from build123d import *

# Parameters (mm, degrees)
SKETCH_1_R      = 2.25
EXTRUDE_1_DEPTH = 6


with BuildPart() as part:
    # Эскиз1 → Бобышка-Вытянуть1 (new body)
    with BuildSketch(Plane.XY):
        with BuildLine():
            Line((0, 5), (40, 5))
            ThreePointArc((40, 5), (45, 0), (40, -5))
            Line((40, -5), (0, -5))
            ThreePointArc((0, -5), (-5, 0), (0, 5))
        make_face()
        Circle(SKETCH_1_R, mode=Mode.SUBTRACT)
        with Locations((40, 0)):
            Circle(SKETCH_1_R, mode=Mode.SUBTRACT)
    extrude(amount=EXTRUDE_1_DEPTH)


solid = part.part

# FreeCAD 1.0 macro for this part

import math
import FreeCAD as App
import Part
import Sketcher
Q = App.Units.Quantity

doc = App.newDocument("Part")
body = doc.addObject("PartDesign::Body", "Body")

# Sketch on XY plane
sketch1 = body.newObject("Sketcher::SketchObject", "Sketch")
sketch1.AttachmentSupport = (doc.getObject("XY_Plane"), [""])
sketch1.MapMode = "FlatFace"
sketch1.addGeometry(Part.LineSegment(App.Vector(40, 5, 0), App.Vector(0, 5, 0)), False)
sketch1.addGeometry(Part.ArcOfCircle(Part.Circle(App.Vector(0, 0, 0), App.Vector(0, 0, 1), 5), math.radians(90), math.radians(270)), False)
sketch1.addGeometry(Part.LineSegment(App.Vector(0, -5, 0), App.Vector(40, -5, 0)), False)
sketch1.addGeometry(Part.ArcOfCircle(Part.Circle(App.Vector(40, 0, 0), App.Vector(0, 0, 1), 5), math.radians(-90), math.radians(90)), False)
sketch1.addGeometry(Part.Circle(App.Vector(40, 0, 0), App.Vector(0, 0, 1), 2.2), False)
sketch1.addGeometry(Part.Circle(App.Vector(0, 0, 0), App.Vector(0, 0, 1), 2.2), False)
sketch1.addConstraint(Sketcher.Constraint("Tangent", 0, 2, 1, 1))
sketch1.addConstraint(Sketcher.Constraint("Tangent", 1, 2, 2, 1))
sketch1.addConstraint(Sketcher.Constraint("Tangent", 2, 2, 3, 1))
sketch1.addConstraint(Sketcher.Constraint("Tangent", 3, 2, 0, 1))
sketch1.addConstraint(Sketcher.Constraint("Horizontal", 0))
sketch1.addConstraint(Sketcher.Constraint("Horizontal", 2))
sketch1.addConstraint(Sketcher.Constraint("Coincident", 1, 3, -1, 1))
sketch1.addConstraint(Sketcher.Constraint("Coincident", 5, 3, -1, 1))
sketch1.addConstraint(Sketcher.Constraint("Coincident", 4, 3, 3, 3))
sketch1.addConstraint(Sketcher.Constraint("Equal", 4, 5))
sketch1.addConstraint(Sketcher.Constraint("Radius", 1, Q("5 mm")))
sketch1.addConstraint(Sketcher.Constraint("Diameter", 4, Q("4.5 mm")))
sketch1.addConstraint(Sketcher.Constraint("DistanceX", 0, 2, 0, 1, Q("40 mm")))
pad1 = body.newObject("PartDesign::Pad", "Pad")
pad1.Profile = sketch1
pad1.Length = 6

doc.recompute()
